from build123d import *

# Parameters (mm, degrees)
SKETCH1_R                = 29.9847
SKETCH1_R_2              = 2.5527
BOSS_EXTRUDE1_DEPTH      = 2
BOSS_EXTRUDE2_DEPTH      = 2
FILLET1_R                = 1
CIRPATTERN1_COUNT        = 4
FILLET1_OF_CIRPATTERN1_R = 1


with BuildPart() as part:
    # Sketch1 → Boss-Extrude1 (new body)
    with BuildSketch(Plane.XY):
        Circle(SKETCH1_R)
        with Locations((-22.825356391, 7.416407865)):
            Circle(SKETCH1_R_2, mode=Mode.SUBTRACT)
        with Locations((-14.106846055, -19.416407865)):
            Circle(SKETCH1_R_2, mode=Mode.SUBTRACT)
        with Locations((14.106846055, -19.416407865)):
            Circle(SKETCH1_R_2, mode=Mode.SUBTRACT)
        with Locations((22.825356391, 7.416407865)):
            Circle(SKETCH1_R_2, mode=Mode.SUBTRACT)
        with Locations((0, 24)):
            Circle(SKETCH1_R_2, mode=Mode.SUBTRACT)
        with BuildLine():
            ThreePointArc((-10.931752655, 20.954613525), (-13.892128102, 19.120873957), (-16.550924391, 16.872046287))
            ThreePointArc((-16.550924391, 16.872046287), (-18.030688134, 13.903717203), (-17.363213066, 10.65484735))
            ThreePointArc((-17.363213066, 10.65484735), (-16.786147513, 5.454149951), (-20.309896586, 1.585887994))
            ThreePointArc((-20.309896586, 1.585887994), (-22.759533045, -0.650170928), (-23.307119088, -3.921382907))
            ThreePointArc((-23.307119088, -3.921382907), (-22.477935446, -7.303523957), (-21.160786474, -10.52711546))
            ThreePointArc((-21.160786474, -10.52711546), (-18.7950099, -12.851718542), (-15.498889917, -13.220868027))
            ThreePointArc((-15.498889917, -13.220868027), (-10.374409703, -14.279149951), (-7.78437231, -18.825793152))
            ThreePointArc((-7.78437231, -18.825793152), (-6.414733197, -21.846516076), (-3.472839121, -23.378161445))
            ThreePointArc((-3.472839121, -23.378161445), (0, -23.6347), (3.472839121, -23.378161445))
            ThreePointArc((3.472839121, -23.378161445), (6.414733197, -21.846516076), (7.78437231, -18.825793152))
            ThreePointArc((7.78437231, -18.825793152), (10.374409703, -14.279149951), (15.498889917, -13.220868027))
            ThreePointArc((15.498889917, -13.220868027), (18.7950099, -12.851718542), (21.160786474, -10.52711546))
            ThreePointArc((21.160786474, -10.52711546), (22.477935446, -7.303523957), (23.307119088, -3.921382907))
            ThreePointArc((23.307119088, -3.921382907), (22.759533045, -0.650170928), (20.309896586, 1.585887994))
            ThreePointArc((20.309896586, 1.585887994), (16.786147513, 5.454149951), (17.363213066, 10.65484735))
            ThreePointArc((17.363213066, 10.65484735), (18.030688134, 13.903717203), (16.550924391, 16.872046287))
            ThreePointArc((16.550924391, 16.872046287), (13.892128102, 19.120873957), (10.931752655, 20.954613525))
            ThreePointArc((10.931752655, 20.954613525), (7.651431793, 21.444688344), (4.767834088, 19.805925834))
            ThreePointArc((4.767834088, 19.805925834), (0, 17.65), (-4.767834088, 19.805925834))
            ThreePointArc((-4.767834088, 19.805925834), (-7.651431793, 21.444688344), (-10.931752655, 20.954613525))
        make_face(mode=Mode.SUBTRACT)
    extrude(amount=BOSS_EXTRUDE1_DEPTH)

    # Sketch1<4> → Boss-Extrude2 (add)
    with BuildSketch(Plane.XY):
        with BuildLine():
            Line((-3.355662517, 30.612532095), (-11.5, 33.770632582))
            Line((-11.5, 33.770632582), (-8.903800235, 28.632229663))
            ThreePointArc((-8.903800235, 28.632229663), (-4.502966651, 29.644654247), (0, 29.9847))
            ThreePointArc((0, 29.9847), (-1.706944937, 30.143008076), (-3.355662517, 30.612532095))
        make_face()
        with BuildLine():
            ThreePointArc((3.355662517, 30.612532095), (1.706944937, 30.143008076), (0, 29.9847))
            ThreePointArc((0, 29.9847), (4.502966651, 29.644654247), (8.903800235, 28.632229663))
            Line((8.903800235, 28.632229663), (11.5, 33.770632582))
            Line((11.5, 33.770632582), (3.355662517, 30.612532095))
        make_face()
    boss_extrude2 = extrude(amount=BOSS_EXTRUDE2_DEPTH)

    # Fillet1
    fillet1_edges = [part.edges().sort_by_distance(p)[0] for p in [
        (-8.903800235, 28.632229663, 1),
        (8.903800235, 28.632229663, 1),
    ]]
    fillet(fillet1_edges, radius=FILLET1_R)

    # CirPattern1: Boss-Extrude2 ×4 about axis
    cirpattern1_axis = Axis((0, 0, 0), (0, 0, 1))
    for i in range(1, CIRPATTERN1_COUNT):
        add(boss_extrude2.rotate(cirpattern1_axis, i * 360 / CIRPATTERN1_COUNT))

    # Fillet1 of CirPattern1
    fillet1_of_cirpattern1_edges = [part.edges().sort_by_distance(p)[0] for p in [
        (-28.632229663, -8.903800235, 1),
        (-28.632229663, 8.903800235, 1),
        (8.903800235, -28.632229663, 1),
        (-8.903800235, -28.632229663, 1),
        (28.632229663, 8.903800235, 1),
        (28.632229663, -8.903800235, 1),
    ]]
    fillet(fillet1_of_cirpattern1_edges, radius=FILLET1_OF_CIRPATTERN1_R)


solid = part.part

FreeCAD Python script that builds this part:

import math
import FreeCAD as App
import Part
import Sketcher
from FreeCAD import Vector
Q = App.Units.Quantity


def edges_at(feature, points):
    """Names of the edges that pass closest to the given points."""
    edges = feature.Shape.Edges
    near = lambda p: min(range(len(edges)), key=lambda i: edges[i].distToShape(Part.Vertex(*p))[0])
    return sorted({f"Edge{near(p) + 1}" for p in points})

doc = App.newDocument("Part")
body = doc.addObject("PartDesign::Body", "Body")

# Sketch on XY plane
sketch1 = body.newObject("Sketcher::SketchObject", "Sketch")
sketch1.AttachmentSupport = (doc.getObject("XY_Plane"), [""])
sketch1.MapMode = "FlatFace"
sketch1.addGeometry([
    Part.Circle(Vector(0, 0, 0), Vector(0, 0, 1), 30),  # 0
    Part.Circle(Vector(-14.1, -19.4, 0), Vector(0, 0, 1), 2.6),  # 1
    Part.Circle(Vector(14.1, -19.4, 0), Vector(0, 0, 1), 2.6),  # 2
    Part.ArcOfCircle(Part.Circle(Vector(0, 0, 0), Vector(0, 0, 1), 23.6), math.radians(117.55), math.radians(134.45)),  # 3
    Part.ArcOfCircle(Part.Circle(Vector(-8.6, 16.5, 0), Vector(0, 0, 1), 5.1), math.radians(41), math.radians(118)),  # 4
    Part.ArcOfCircle(Part.Circle(Vector(0, 24, 0), Vector(0, 0, 1), 6.3), math.radians(-139), math.radians(-41)),  # 5
    Part.ArcOfCircle(Part.Circle(Vector(8.6, 16.5, 0), Vector(0, 0, 1), 5.1), math.radians(62), math.radians(139)),  # 6
    Part.ArcOfCircle(Part.Circle(Vector(0, 0, 0), Vector(0, 0, 1), 23.6), math.radians(45.55), math.radians(62.45)),  # 7
    Part.ArcOfCircle(Part.Circle(Vector(13, 13.2, 0), Vector(0, 0, 1), 5.1), math.radians(-31), math.radians(46)),  # 8
    Part.ArcOfCircle(Part.Circle(Vector(22.8, 7.4, 0), Vector(0, 0, 1), 6.4), math.radians(149), math.radians(247)),  # 9
    Part.ArcOfCircle(Part.Circle(Vector(18.3, -3.1, 0), Vector(0, 0, 1), 5.1), math.radians(-10), math.radians(67)),  # 10
    Part.ArcOfCircle(Part.Circle(Vector(0, 0, 0), Vector(0, 0, 1), 23.6), math.radians(-26.45), math.radians(-9.55)),  # 11
    Part.ArcOfCircle(Part.Circle(Vector(16.6, -8.3, 0), Vector(0, 0, 1), 5.1), math.radians(-103), math.radians(-26)),  # 12
    Part.ArcOfCircle(Part.Circle(Vector(14.1, -19.4, 0), Vector(0, 0, 1), 6.3), math.radians(77), math.radians(175)),  # 13
    Part.ArcOfCircle(Part.Circle(Vector(2.7, -18.4, 0), Vector(0, 0, 1), 5.1), math.radians(-82), math.radians(-5)),  # 14
    Part.ArcOfCircle(Part.Circle(Vector(0, 0, 0), Vector(0, 0, 1), 23.6), math.radians(-98.45), math.radians(-81.55)),  # 15
    Part.ArcOfCircle(Part.Circle(Vector(-2.7, -18.4, 0), Vector(0, 0, 1), 5.1), math.radians(-175), math.radians(-98)),  # 16
    Part.ArcOfCircle(Part.Circle(Vector(-14.1, -19.4, 0), Vector(0, 0, 1), 6.3), math.radians(5), math.radians(103)),  # 17
    Part.ArcOfCircle(Part.Circle(Vector(-16.6, -8.3, 0), Vector(0, 0, 1), 5.1), math.radians(-154), math.radians(-77)),  # 18
    Part.ArcOfCircle(Part.Circle(Vector(0, 0, 0), Vector(0, 0, 1), 23.6), math.radians(-170.45), math.radians(-153.55)),  # 19
    Part.ArcOfCircle(Part.Circle(Vector(-18.3, -3.1, 0), Vector(0, 0, 1), 5.1), math.radians(113), math.radians(190)),  # 20
    Part.ArcOfCircle(Part.Circle(Vector(-22.8, 7.4, 0), Vector(0, 0, 1), 6.4), math.radians(-67), math.radians(31)),  # 21
    Part.ArcOfCircle(Part.Circle(Vector(-13, 13.2, 0), Vector(0, 0, 1), 5.1), math.radians(134), math.radians(211)),  # 22
    Part.Circle(Vector(-22.8, 7.4, 0), Vector(0, 0, 1), 2.6),  # 23
    Part.Circle(Vector(22.8, 7.4, 0), Vector(0, 0, 1), 2.6),  # 24
    Part.Circle(Vector(0, 24, 0), Vector(0, 0, 1), 2.6),  # 25
], False)
sketch1.addConstraint([
    Sketcher.Constraint("Tangent", 3, 1, 4, 2),
    Sketcher.Constraint("Tangent", 4, 1, 5, 1),
    Sketcher.Constraint("Tangent", 5, 2, 6, 2),
    Sketcher.Constraint("Tangent", 6, 1, 7, 2),
    Sketcher.Constraint("Tangent", 7, 1, 8, 2),
    Sketcher.Constraint("Tangent", 8, 1, 9, 1),
    Sketcher.Constraint("Tangent", 9, 2, 10, 2),
    Sketcher.Constraint("Tangent", 10, 1, 11, 2),
    Sketcher.Constraint("Tangent", 11, 1, 12, 2),
    Sketcher.Constraint("Tangent", 12, 1, 13, 1),
    Sketcher.Constraint("Tangent", 13, 2, 14, 2),
    Sketcher.Constraint("Tangent", 14, 1, 15, 2),
    Sketcher.Constraint("Tangent", 15, 1, 16, 2),
    Sketcher.Constraint("Tangent", 16, 1, 17, 1),
    Sketcher.Constraint("Tangent", 17, 2, 18, 2),
    Sketcher.Constraint("Tangent", 18, 1, 19, 2),
    Sketcher.Constraint("Tangent", 19, 1, 20, 2),
    Sketcher.Constraint("Tangent", 20, 1, 21, 1),
    Sketcher.Constraint("Tangent", 21, 2, 22, 2),
    Sketcher.Constraint("Tangent", 22, 1, 3, 2),
    Sketcher.Constraint("Coincident", 0, 3, -1, 1),
    Sketcher.Constraint("Coincident", 3, 3, -1, 1),
    Sketcher.Constraint("Coincident", 7, 3, -1, 1),
    Sketcher.Constraint("Coincident", 11, 3, -1, 1),
    Sketcher.Constraint("Coincident", 15, 3, -1, 1),
    Sketcher.Constraint("Coincident", 19, 3, -1, 1),
    Sketcher.Constraint("Coincident", 13, 3, 2, 3),
    Sketcher.Constraint("Coincident", 17, 3, 1, 3),
    Sketcher.Constraint("Coincident", 23, 3, 21, 3),
    Sketcher.Constraint("Coincident", 24, 3, 9, 3),
    Sketcher.Constraint("Coincident", 25, 3, 5, 3),
    Sketcher.Constraint("Equal", 1, 2),
    Sketcher.Constraint("Equal", 4, 6),
    Sketcher.Constraint("Equal", 3, 7),
    Sketcher.Constraint("Equal", 6, 8),
    Sketcher.Constraint("Equal", 5, 9),
    Sketcher.Constraint("Equal", 8, 10),
    Sketcher.Constraint("Equal", 7, 11),
    Sketcher.Constraint("Equal", 10, 12),
    Sketcher.Constraint("Equal", 9, 13),
    Sketcher.Constraint("Equal", 12, 14),
    Sketcher.Constraint("Equal", 11, 15),
    Sketcher.Constraint("Equal", 14, 16),
    Sketcher.Constraint("Equal", 13, 17),
    Sketcher.Constraint("Equal", 16, 18),
    Sketcher.Constraint("Equal", 15, 19),
    Sketcher.Constraint("Equal", 18, 20),
    Sketcher.Constraint("Equal", 17, 21),
    Sketcher.Constraint("Equal", 20, 22),
    Sketcher.Constraint("Equal", 2, 23),
    Sketcher.Constraint("Equal", 23, 24),
    Sketcher.Constraint("Equal", 24, 25),
    Sketcher.Constraint("Symmetric", 1, 3, 2, 3, -2),
    Sketcher.Constraint("Symmetric", 9, 3, 21, 3, -2),
    Sketcher.Constraint("PointOnObject", 5, 3, -2),
    Sketcher.Constraint("Radius", 4, Q("0.2 in")),
    Sketcher.Constraint("Radius", 5, Q("0.25 in")),
    Sketcher.Constraint("Diameter", 0, Q("2.361 in")),
    Sketcher.Constraint("Diameter", 1, Q("0.201 in")),
    Sketcher.Constraint("Radius", 3, Q("0.9305 in")),
    Sketcher.Constraint("DistanceY", 14, 1, -1, 1, Q("0.9204001 in")),
    Sketcher.Constraint("DistanceX", 4, 3, -1, 1, 8.582101),
    Sketcher.Constraint("DistanceX", -1, 1, 8, 3, 12.993498),
    Sketcher.Constraint("DistanceY", 8, 1, 7, 1, 6.217199),
    Sketcher.Constraint("DistanceX", -1, 1, 12, 1, 15.49889),
])
pad1 = body.newObject("PartDesign::Pad", "Pad")
pad1.Profile = sketch1
pad1.Length = 2

# Sketch on XY plane
sketch2 = body.newObject("Sketcher::SketchObject", "Sketch001")
sketch2.AttachmentSupport = (doc.getObject("XY_Plane"), [""])
sketch2.MapMode = "FlatFace"
sketch2.addGeometry([
    Part.LineSegment(Vector(-3.4, 30.6, 0), Vector(-11.5, 33.8, 0)),  # 0
    Part.LineSegment(Vector(-11.5, 33.8, 0), Vector(-8.9, 28.6, 0)),  # 1
    Part.ArcOfCircle(Part.Circle(Vector(0, 0, 0), Vector(0, 0, 1), 30), math.radians(90), math.radians(107.27)),  # 2
    Part.ArcOfCircle(Part.Circle(Vector(0, 39.3, 0), Vector(0, 0, 1), 9.3), math.radians(-111), math.radians(-90)),  # 3
    Part.ArcOfCircle(Part.Circle(Vector(0, 39.3, 0), Vector(0, 0, 1), 9.3), math.radians(-90), math.radians(-69)),  # 4
    Part.ArcOfCircle(Part.Circle(Vector(0, 0, 0), Vector(0, 0, 1), 30), math.radians(72.73), math.radians(90)),  # 5
    Part.LineSegment(Vector(8.9, 28.6, 0), Vector(11.5, 33.8, 0)),  # 6
    Part.LineSegment(Vector(11.5, 33.8, 0), Vector(3.4, 30.6, 0)),  # 7
], False)
sketch2.addConstraint([
    Sketcher.Constraint("Coincident", 0, 2, 1, 1),
    Sketcher.Constraint("Coincident", 1, 2, 2, 2),
    Sketcher.Constraint("Tangent", 2, 1, 3, 2),
    Sketcher.Constraint("Tangent", 3, 1, 0, 1),
    Sketcher.Constraint("Tangent", 4, 1, 5, 2),
    Sketcher.Constraint("Coincident", 5, 1, 6, 1),
    Sketcher.Constraint("Coincident", 6, 2, 7, 1),
    Sketcher.Constraint("Tangent", 7, 2, 4, 2),
    Sketcher.Constraint("Coincident", 2, 3, -1, 1),
    Sketcher.Constraint("Coincident", 5, 3, -1, 1),
    Sketcher.Constraint("Coincident", 4, 3, 3, 3),
    Sketcher.Constraint("Equal", 3, 4),
    Sketcher.Constraint("Symmetric", 0, 2, 6, 2, -2),
    Sketcher.Constraint("PointOnObject", 3, 3, -2),
    Sketcher.Constraint("Horizontal", 1, 2, 5, 1),
    Sketcher.Constraint("Radius", 2, Q("1.1805 in")),
    Sketcher.Constraint("Radius", 3, 9.281657),
    Sketcher.Constraint("DistanceX", 0, 2, -1, 1, 11.5),
    Sketcher.Constraint("DistanceX", 1, 2, -1, 1, 8.9038),
    Sketcher.Constraint("DistanceY", 3, 1, 0, 2, 3.1581),
])
pad2 = body.newObject("PartDesign::Pad", "Pad001")
pad2.Profile = sketch2
pad2.Length = 2
doc.recompute()

fillet = body.newObject("PartDesign::Fillet", "Fillet")
fillet.Base = (pad2, edges_at(pad2, [(-8.904, 28.632, 1), (8.904, 28.632, 1)]))
fillet.Radius = 1
doc.recompute()

polarpattern = body.newObject("PartDesign::PolarPattern", "PolarPattern")
polarpattern.Originals = [pad2]
polarpattern.Axis = (doc.getObject("Z_Axis"), [""])
polarpattern.Angle = 360
polarpattern.Occurrences = 4
body.Tip = polarpattern
doc.recompute()

fillet2 = body.newObject("PartDesign::Fillet", "Fillet001")
fillet2.Base = (polarpattern, edges_at(polarpattern, [
    (-28.632, -8.904, 1),
    (-28.632, 8.904, 1),
    (8.904, -28.632, 1),
    (-8.904, -28.632, 1),
    (28.632, 8.904, 1),
    (28.632, -8.904, 1),
]))
fillet2.Radius = 1

doc.recompute()
